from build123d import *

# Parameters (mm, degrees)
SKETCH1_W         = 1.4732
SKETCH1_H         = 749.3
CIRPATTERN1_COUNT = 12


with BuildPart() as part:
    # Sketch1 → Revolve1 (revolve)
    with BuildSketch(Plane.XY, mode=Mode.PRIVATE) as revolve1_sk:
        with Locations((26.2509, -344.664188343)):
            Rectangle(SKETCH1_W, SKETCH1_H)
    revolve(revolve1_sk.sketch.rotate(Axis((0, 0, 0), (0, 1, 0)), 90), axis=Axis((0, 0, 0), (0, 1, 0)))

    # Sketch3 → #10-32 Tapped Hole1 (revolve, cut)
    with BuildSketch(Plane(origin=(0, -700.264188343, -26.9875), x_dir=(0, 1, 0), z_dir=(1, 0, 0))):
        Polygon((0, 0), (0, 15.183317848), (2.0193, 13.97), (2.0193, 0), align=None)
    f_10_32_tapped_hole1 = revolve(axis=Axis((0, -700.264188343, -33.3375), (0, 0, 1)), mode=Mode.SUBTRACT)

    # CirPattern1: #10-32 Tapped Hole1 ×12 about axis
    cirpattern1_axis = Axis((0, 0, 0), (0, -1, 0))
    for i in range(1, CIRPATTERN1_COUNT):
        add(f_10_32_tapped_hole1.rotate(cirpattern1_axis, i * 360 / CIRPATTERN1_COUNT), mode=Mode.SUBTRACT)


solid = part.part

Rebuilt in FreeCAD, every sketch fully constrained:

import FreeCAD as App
import Part
import Sketcher
from FreeCAD import Vector
Q = App.Units.Quantity


def add_polygon(sketch, points):
    """Adds a closed chain of lines whose ends are joined by coincident constraints."""
    first, n = sketch.GeometryCount, len(points)
    for a, b in zip(points, points[1:] + points[:1]):
        sketch.addGeometry(Part.LineSegment(App.Vector(*a, 0), App.Vector(*b, 0)), False)
    for i in range(n):
        sketch.addConstraint(Sketcher.Constraint("Coincident", first + i, 2, first + (i + 1) % n, 1))

doc = App.newDocument("Part")
params = doc.addObject("Spreadsheet::Sheet", "Params")
for row, (alias, value) in enumerate([
    ("sketch1_height", "29.5 in"),
    ("sketch1_width", "0.058 in"),
    ("revolution_angle", "360 deg"),
    ("sketch2_height", "0.55 in"),
    ("groove_angle", "360 deg"),
], start=1):
    params.set(f"A{row}", alias)
    params.set(f"B{row}", "=" + value)
    params.setAlias(f"B{row}", alias)

body = doc.addObject("PartDesign::Body", "Body")

# Sketch on XY plane
sketch1 = body.newObject("Sketcher::SketchObject", "Sketch")
sketch1.AttachmentSupport = (doc.getObject("XY_Plane"), [""])
sketch1.MapMode = "FlatFace"
add_polygon(sketch1, [(25.5143, 29.985812), (25.5143, -719.314188), (26.9875, -719.314188), (26.9875, 29.985812)])  # lines 0-3
sketch1.addConstraint([
    Sketcher.Constraint("Vertical", 0),
    Sketcher.Constraint("Horizontal", 1),
    Sketcher.Constraint("Vertical", 2),
    Sketcher.Constraint("Horizontal", 3),
    Sketcher.Constraint("DistanceY", 0, 2, 0, 1, Q("29.5 in")),
    Sketcher.Constraint("DistanceX", 1, 1, 1, 2, Q("0.058 in")),
    Sketcher.Constraint("DistanceX", -1, 1, 1, 2, Q("1.0625 in")),
    Sketcher.Constraint("DistanceY", 0, 2, -1, 1, Q("719.314188 mm")),
])
sketch1.setExpression("Constraints[8]", "Params.sketch1_height")
sketch1.setExpression("Constraints[9]", "Params.sketch1_width")
revolution = body.newObject("PartDesign::Revolution", "Revolution")
revolution.Profile = sketch1
revolution.ReferenceAxis = (sketch1, ["V_Axis"])
revolution.setExpression("Angle", "Params.revolution_angle")

# Sketch on YZ plane
sketch2 = body.newObject("Sketcher::SketchObject", "Sketch001")
sketch2.AttachmentSupport = (doc.getObject("YZ_Plane"), [""])
sketch2.MapMode = "FlatFace"
add_polygon(sketch2, [(-700.264188, -11.804182), (-700.264188, -26.9875), (-698.244888, -26.9875), (-698.244888, -13.0175)])  # lines 0-3
sketch2.addGeometry(Part.LineSegment(Vector(-700.264188, -26.9875, 0), Vector(-700.264188, -11.804182, 0)), True)  # axis
sketch2.addConstraint([
    Sketcher.Constraint("Vertical", 0),
    Sketcher.Constraint("Horizontal", 1),
    Sketcher.Constraint("Vertical", 2),
    Sketcher.Constraint("Vertical", 4),
    Sketcher.Constraint("Coincident", 4, 1, 0, 2),
    Sketcher.Constraint("Equal", 0, 4),
    Sketcher.Constraint("Angle", 3, Q("149 deg")),
    Sketcher.Constraint("DistanceY", 2, 1, 2, 2, Q("0.55 in")),
    Sketcher.Constraint("DistanceX", 1, 1, 1, 2, Q("0.0795 in")),
    Sketcher.Constraint("DistanceY", 0, 2, -1, 1, Q("1.0625 in")),
    Sketcher.Constraint("DistanceX", 0, 2, -1, 1, Q("700.264188 mm")),
])
sketch2.setExpression("Constraints[11]", "Params.sketch2_height")
groove = body.newObject("PartDesign::Groove", "Groove")
groove.Profile = sketch2
groove.ReferenceAxis = (sketch2, ["Axis0"])
groove.setExpression("Angle", "Params.groove_angle")
doc.recompute()

polarpattern = body.newObject("PartDesign::PolarPattern", "PolarPattern")
polarpattern.Originals = [groove]
polarpattern.Axis = (doc.getObject("Y_Axis"), [""])
polarpattern.Angle = 360
polarpattern.Occurrences = 12
body.Tip = polarpattern

doc.recompute()
